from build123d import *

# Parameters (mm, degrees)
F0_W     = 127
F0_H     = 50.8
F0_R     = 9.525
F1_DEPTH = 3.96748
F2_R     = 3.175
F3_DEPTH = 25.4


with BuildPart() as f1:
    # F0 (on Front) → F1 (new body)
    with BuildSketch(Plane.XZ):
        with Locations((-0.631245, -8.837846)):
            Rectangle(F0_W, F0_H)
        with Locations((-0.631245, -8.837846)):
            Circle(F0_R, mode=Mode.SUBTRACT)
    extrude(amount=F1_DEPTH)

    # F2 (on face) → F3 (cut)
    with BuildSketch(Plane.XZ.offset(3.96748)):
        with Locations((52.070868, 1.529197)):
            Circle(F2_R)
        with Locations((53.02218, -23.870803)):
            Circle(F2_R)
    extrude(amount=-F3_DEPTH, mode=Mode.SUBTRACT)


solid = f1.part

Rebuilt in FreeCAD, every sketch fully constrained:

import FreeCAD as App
import Part
import Sketcher
from FreeCAD import Vector
Q = App.Units.Quantity

doc = App.newDocument("Part")
params = doc.addObject("Spreadsheet::Sheet", "Params")
for row, (alias, value) in enumerate([
    ("sketch1_diameter", "0.75 in"),
    ("sketch1_width", "5 in"),
    ("sketch1_height", "2 in"),
    ("pad1_length", "0.1562 in"),
    ("sketch2_diameter", "0.25 in"),
    ("pocket1_length", "1 in"),
], start=1):
    params.set(f"A{row}", alias)
    params.set(f"B{row}", "=" + value)
    params.setAlias(f"B{row}", alias)

body = doc.addObject("PartDesign::Body", "Body")

# Sketch on XZ plane
sketch1 = body.newObject("Sketcher::SketchObject", "Sketch")
sketch1.AttachmentSupport = (doc.getObject("XZ_Plane"), [""])
sketch1.MapMode = "FlatFace"
sketch1.addGeometry(Part.LineSegment(Vector(-64, 17, 0), Vector(-64, -34, 0)), False)
sketch1.addGeometry(Part.LineSegment(Vector(-64, -34, 0), Vector(63, -34, 0)), False)
sketch1.addGeometry(Part.LineSegment(Vector(63, -34, 0), Vector(63, 17, 0)), False)
sketch1.addGeometry(Part.LineSegment(Vector(63, 17, 0), Vector(-64, 17, 0)), False)
sketch1.addGeometry(Part.Circle(Vector(-1, -9, 0), Vector(0, 0, 1), 10), False)
sketch1.addConstraint(Sketcher.Constraint("Coincident", 0, 2, 1, 1))
sketch1.addConstraint(Sketcher.Constraint("Coincident", 1, 2, 2, 1))
sketch1.addConstraint(Sketcher.Constraint("Coincident", 2, 2, 3, 1))
sketch1.addConstraint(Sketcher.Constraint("Coincident", 3, 2, 0, 1))
sketch1.addConstraint(Sketcher.Constraint("Vertical", 0))
sketch1.addConstraint(Sketcher.Constraint("Horizontal", 1))
sketch1.addConstraint(Sketcher.Constraint("Vertical", 2))
sketch1.addConstraint(Sketcher.Constraint("Horizontal", 3))
sketch1.addConstraint(Sketcher.Constraint("Diameter", 4, Q("0.75 in")))
sketch1.addConstraint(Sketcher.Constraint("DistanceX", 1, 1, 1, 2, Q("5 in")))
sketch1.addConstraint(Sketcher.Constraint("DistanceY", 0, 2, 0, 1, Q("2 in")))
sketch1.addConstraint(Sketcher.Constraint("DistanceY", 0, 2, 4, 3, Q("1 in")))
sketch1.addConstraint(Sketcher.Constraint("DistanceX", 0, 2, 4, 3, Q("2.5 in")))
sketch1.addConstraint(Sketcher.Constraint("DistanceX", 4, 3, -1, 1, Q("0.631245 mm")))
sketch1.addConstraint(Sketcher.Constraint("DistanceY", 4, 3, -1, 1, Q("8.837846 mm")))
sketch1.setExpression("Constraints[8]", "Params.sketch1_diameter")
sketch1.setExpression("Constraints[9]", "Params.sketch1_width")
sketch1.setExpression("Constraints[10]", "Params.sketch1_height")
pad1 = body.newObject("PartDesign::Pad", "Pad")
pad1.Profile = sketch1
pad1.setExpression("Length", "Params.pad1_length")

# Sketch on XZ plane
sketch2 = body.newObject("Sketcher::SketchObject", "Sketch001")
sketch2.AttachmentSupport = (doc.getObject("XZ_Plane"), [""])
sketch2.MapMode = "FlatFace"
sketch2.AttachmentOffset = App.Placement(Vector(0, 0, 0.1562 * 25.4), App.Rotation())
sketch2.addGeometry(Part.Circle(Vector(52.1, 1.5, 0), Vector(0, 0, 1), 3.2), False)
sketch2.addGeometry(Part.Circle(Vector(53, -23.9, 0), Vector(0, 0, 1), 3.2), False)
sketch2.addConstraint(Sketcher.Constraint("Equal", 0, 1))
sketch2.addConstraint(Sketcher.Constraint("Diameter", 0, Q("0.25 in")))
sketch2.addConstraint(Sketcher.Constraint("DistanceY", 1, 3, 0, 3, Q("1 in")))
sketch2.addConstraint(Sketcher.Constraint("DistanceX", -1, 1, 1, 3, Q("53.02218 mm")))
sketch2.addConstraint(Sketcher.Constraint("DistanceX", -1, 1, 0, 3, Q("52.070868 mm")))
sketch2.addConstraint(Sketcher.Constraint("DistanceY", -1, 1, 0, 3, Q("1.529197 mm")))
sketch2.setExpression("Constraints[1]", "Params.sketch2_diameter")
pocket1 = body.newObject("PartDesign::Pocket", "Pocket")
pocket1.Profile = sketch2
pocket1.setExpression("Length", "Params.pocket1_length")

doc.recompute()
